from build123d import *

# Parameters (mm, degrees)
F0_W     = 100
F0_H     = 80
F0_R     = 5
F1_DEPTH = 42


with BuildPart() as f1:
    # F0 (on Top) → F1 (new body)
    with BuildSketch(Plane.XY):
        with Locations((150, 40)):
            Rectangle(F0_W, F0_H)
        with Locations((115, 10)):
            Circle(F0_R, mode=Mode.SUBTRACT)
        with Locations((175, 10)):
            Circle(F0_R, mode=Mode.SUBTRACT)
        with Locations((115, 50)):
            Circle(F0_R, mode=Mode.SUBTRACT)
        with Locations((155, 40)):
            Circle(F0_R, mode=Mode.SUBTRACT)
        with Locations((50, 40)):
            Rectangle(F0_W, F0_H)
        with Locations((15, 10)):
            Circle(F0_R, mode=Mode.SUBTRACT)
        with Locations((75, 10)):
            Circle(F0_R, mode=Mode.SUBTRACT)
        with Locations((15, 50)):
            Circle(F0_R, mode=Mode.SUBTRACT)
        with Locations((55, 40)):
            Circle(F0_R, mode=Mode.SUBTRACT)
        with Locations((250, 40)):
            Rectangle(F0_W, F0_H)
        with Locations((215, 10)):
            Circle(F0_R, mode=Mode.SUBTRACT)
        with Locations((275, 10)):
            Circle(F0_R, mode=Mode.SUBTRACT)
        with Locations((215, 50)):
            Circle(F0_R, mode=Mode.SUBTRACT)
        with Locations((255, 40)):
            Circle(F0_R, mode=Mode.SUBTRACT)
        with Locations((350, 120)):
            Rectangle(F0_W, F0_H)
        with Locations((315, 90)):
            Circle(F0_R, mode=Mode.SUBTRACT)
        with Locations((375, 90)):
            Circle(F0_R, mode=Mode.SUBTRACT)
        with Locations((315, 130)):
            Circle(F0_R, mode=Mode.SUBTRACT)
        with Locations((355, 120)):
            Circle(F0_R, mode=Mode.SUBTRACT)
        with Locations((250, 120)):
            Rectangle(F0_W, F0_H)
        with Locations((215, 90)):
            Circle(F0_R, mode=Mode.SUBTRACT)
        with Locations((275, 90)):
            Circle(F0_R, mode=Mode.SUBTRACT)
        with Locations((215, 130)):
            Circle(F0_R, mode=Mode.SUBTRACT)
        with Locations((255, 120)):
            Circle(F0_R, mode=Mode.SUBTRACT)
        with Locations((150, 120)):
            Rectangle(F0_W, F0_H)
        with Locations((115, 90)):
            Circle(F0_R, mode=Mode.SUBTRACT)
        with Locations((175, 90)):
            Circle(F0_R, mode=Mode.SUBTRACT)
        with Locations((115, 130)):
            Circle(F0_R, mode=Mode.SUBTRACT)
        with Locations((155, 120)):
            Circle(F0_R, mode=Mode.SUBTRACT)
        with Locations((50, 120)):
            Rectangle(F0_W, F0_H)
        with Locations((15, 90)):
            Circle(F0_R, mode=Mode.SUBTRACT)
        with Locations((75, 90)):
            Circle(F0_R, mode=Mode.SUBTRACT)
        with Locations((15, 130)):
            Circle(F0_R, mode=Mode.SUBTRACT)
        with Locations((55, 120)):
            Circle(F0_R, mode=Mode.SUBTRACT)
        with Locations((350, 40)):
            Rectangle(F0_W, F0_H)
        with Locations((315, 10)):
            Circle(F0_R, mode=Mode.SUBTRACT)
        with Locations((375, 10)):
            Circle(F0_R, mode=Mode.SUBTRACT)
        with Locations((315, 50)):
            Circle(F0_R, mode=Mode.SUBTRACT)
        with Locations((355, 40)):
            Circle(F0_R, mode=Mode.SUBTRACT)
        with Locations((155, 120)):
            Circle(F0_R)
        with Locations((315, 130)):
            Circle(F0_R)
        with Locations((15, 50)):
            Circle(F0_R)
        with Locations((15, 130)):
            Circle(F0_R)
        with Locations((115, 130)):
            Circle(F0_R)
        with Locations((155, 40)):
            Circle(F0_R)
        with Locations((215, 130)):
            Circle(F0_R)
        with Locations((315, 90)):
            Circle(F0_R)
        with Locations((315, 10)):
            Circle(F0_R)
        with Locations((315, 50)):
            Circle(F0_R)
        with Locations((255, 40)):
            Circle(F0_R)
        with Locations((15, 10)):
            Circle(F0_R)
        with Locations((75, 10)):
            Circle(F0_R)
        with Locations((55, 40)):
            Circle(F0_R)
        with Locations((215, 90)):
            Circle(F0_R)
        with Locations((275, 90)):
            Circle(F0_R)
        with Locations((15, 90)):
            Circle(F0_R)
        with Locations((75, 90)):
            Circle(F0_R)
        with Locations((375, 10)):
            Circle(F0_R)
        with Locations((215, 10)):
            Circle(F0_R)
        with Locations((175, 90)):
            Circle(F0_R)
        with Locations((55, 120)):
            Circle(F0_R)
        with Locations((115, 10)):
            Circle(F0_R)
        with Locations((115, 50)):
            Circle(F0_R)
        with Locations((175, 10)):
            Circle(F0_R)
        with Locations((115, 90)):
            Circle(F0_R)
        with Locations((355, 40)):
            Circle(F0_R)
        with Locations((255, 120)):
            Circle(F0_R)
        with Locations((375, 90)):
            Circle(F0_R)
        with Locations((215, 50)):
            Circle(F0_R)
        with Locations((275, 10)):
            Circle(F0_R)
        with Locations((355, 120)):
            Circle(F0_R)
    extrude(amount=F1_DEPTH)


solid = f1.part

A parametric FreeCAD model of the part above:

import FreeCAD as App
import Part
import Sketcher
Q = App.Units.Quantity

doc = App.newDocument("Part")
params = doc.addObject("Spreadsheet::Sheet", "Params")
for row, (alias, value) in enumerate([
    ("sketch1_width", "400 mm"),
    ("sketch1_height", "160 mm"),
    ("pad1_length", "42 mm"),
], start=1):
    params.set(f"A{row}", alias)
    params.set(f"B{row}", "=" + value)
    params.setAlias(f"B{row}", alias)

body = doc.addObject("PartDesign::Body", "Body")

# Sketch on XY plane
sketch1 = doc.addObject("Sketcher::SketchObject", "Sketch")
body.addObject(sketch1)
sketch1.AttachmentSupport = (doc.XY_Plane, [""])
sketch1.MapMode = "FlatFace"
sketch1.addGeometry([
    Part.LineSegment(App.Vector(0, 0, 0), App.Vector(400, 0, 0)),
    Part.LineSegment(App.Vector(400, 0, 0), App.Vector(400, 160, 0)),
    Part.LineSegment(App.Vector(400, 160, 0), App.Vector(0, 160, 0)),
    Part.LineSegment(App.Vector(0, 160, 0), App.Vector(0, 0, 0)),
], False)
sketch1.addConstraint([
    Sketcher.Constraint("Coincident", 0, 2, 1, 1),
    Sketcher.Constraint("Coincident", 1, 2, 2, 1),
    Sketcher.Constraint("Coincident", 2, 2, 3, 1),
    Sketcher.Constraint("Coincident", 3, 2, 0, 1),
    Sketcher.Constraint("Horizontal", 0),
    Sketcher.Constraint("Vertical", 1),
    Sketcher.Constraint("Horizontal", 2),
    Sketcher.Constraint("Vertical", 3),
    Sketcher.Constraint("Coincident", 3, 2, -1, 1),
    Sketcher.Constraint("DistanceX", 0, 1, 0, 2, Q("400 mm")),
    Sketcher.Constraint("DistanceY", 1, 1, 1, 2, Q("160 mm")),
])
sketch1.setExpression("Constraints[9]", "Params.sketch1_width")
sketch1.setExpression("Constraints[10]", "Params.sketch1_height")
pad1 = doc.addObject("PartDesign::Pad", "Pad")
body.addObject(pad1)
pad1.Profile = sketch1
pad1.setExpression("Length", "Params.pad1_length")

doc.recompute()
